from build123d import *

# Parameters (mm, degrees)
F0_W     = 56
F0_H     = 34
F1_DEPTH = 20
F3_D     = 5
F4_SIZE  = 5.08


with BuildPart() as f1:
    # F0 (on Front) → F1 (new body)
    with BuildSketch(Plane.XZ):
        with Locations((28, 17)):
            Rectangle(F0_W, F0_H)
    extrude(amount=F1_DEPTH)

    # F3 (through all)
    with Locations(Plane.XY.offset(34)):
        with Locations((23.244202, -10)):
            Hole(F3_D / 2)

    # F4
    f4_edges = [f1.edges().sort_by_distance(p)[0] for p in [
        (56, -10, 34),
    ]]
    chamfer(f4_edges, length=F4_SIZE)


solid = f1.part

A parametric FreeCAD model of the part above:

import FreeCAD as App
import Part
import Sketcher


def edges_at(feature, points):
    """Names of the edges that pass closest to the given points."""
    edges = feature.Shape.Edges
    near = lambda p: min(range(len(edges)), key=lambda i: edges[i].distToShape(Part.Vertex(*p))[0])
    return sorted({f"Edge{near(p) + 1}" for p in points})


def add_polygon(sketch, points):
    """Adds a closed chain of lines whose ends are joined by coincident constraints."""
    first, n = sketch.GeometryCount, len(points)
    for a, b in zip(points, points[1:] + points[:1]):
        sketch.addGeometry(Part.LineSegment(App.Vector(*a, 0), App.Vector(*b, 0)), False)
    for i in range(n):
        sketch.addConstraint(Sketcher.Constraint("Coincident", first + i, 2, first + (i + 1) % n, 1))

doc = App.newDocument("Part")
body = doc.addObject("PartDesign::Body", "Body")

sketch1 = body.newObject("Sketcher::SketchObject", "Sketch")
sketch1.AttachmentSupport = (doc.getObject("XZ_Plane"), [""])
sketch1.MapMode = "FlatFace"
add_polygon(sketch1, [(0, 34), (0, 0), (56, 0), (56, 34)])
sketch1.addConstraint([
    Sketcher.Constraint("Vertical", 0),
    Sketcher.Constraint("Horizontal", 1),
    Sketcher.Constraint("Vertical", 2),
    Sketcher.Constraint("Horizontal", 3),
    Sketcher.Constraint("Coincident", 0, 2, -1, 1),
    Sketcher.Constraint("DistanceX", 1, 1, 1, 2, 56.0),
    Sketcher.Constraint("DistanceY", 0, 2, 0, 1, 34.0),
])
pad1 = body.newObject("PartDesign::Pad", "Pad")
pad1.Profile = sketch1
pad1.Length = 20

sketch2 = body.newObject("Sketcher::SketchObject", "Sketch001")
sketch2.AttachmentSupport = (doc.getObject("XY_Plane"), [""])
sketch2.MapMode = "FlatFace"
sketch2.AttachmentOffset = App.Placement(App.Vector(0, 0, 34), App.Rotation())
sketch2.addGeometry(Part.Circle(App.Vector(23.2, -10, 0), App.Vector(0, 0, 1), 2.5), False)
sketch2.addConstraint([
    Sketcher.Constraint("Diameter", 0, 5.0),
    Sketcher.Constraint("DistanceY", 0, 3, -1, 1, 10.0),
    Sketcher.Constraint("DistanceX", -1, 1, 0, 3, 23.244202),
])
doc.recompute()
hole = body.newObject("PartDesign::Hole", "Hole")
hole.Profile = sketch2
hole.ThreadType = "None"
hole.Diameter = 5
hole.DepthType = "ThroughAll"
doc.recompute()

chamfer = body.newObject("PartDesign::Chamfer", "Chamfer")
chamfer.Base = (hole, edges_at(hole, [(56, -10, 34)]))
chamfer.Size = 5.08

doc.recompute()
